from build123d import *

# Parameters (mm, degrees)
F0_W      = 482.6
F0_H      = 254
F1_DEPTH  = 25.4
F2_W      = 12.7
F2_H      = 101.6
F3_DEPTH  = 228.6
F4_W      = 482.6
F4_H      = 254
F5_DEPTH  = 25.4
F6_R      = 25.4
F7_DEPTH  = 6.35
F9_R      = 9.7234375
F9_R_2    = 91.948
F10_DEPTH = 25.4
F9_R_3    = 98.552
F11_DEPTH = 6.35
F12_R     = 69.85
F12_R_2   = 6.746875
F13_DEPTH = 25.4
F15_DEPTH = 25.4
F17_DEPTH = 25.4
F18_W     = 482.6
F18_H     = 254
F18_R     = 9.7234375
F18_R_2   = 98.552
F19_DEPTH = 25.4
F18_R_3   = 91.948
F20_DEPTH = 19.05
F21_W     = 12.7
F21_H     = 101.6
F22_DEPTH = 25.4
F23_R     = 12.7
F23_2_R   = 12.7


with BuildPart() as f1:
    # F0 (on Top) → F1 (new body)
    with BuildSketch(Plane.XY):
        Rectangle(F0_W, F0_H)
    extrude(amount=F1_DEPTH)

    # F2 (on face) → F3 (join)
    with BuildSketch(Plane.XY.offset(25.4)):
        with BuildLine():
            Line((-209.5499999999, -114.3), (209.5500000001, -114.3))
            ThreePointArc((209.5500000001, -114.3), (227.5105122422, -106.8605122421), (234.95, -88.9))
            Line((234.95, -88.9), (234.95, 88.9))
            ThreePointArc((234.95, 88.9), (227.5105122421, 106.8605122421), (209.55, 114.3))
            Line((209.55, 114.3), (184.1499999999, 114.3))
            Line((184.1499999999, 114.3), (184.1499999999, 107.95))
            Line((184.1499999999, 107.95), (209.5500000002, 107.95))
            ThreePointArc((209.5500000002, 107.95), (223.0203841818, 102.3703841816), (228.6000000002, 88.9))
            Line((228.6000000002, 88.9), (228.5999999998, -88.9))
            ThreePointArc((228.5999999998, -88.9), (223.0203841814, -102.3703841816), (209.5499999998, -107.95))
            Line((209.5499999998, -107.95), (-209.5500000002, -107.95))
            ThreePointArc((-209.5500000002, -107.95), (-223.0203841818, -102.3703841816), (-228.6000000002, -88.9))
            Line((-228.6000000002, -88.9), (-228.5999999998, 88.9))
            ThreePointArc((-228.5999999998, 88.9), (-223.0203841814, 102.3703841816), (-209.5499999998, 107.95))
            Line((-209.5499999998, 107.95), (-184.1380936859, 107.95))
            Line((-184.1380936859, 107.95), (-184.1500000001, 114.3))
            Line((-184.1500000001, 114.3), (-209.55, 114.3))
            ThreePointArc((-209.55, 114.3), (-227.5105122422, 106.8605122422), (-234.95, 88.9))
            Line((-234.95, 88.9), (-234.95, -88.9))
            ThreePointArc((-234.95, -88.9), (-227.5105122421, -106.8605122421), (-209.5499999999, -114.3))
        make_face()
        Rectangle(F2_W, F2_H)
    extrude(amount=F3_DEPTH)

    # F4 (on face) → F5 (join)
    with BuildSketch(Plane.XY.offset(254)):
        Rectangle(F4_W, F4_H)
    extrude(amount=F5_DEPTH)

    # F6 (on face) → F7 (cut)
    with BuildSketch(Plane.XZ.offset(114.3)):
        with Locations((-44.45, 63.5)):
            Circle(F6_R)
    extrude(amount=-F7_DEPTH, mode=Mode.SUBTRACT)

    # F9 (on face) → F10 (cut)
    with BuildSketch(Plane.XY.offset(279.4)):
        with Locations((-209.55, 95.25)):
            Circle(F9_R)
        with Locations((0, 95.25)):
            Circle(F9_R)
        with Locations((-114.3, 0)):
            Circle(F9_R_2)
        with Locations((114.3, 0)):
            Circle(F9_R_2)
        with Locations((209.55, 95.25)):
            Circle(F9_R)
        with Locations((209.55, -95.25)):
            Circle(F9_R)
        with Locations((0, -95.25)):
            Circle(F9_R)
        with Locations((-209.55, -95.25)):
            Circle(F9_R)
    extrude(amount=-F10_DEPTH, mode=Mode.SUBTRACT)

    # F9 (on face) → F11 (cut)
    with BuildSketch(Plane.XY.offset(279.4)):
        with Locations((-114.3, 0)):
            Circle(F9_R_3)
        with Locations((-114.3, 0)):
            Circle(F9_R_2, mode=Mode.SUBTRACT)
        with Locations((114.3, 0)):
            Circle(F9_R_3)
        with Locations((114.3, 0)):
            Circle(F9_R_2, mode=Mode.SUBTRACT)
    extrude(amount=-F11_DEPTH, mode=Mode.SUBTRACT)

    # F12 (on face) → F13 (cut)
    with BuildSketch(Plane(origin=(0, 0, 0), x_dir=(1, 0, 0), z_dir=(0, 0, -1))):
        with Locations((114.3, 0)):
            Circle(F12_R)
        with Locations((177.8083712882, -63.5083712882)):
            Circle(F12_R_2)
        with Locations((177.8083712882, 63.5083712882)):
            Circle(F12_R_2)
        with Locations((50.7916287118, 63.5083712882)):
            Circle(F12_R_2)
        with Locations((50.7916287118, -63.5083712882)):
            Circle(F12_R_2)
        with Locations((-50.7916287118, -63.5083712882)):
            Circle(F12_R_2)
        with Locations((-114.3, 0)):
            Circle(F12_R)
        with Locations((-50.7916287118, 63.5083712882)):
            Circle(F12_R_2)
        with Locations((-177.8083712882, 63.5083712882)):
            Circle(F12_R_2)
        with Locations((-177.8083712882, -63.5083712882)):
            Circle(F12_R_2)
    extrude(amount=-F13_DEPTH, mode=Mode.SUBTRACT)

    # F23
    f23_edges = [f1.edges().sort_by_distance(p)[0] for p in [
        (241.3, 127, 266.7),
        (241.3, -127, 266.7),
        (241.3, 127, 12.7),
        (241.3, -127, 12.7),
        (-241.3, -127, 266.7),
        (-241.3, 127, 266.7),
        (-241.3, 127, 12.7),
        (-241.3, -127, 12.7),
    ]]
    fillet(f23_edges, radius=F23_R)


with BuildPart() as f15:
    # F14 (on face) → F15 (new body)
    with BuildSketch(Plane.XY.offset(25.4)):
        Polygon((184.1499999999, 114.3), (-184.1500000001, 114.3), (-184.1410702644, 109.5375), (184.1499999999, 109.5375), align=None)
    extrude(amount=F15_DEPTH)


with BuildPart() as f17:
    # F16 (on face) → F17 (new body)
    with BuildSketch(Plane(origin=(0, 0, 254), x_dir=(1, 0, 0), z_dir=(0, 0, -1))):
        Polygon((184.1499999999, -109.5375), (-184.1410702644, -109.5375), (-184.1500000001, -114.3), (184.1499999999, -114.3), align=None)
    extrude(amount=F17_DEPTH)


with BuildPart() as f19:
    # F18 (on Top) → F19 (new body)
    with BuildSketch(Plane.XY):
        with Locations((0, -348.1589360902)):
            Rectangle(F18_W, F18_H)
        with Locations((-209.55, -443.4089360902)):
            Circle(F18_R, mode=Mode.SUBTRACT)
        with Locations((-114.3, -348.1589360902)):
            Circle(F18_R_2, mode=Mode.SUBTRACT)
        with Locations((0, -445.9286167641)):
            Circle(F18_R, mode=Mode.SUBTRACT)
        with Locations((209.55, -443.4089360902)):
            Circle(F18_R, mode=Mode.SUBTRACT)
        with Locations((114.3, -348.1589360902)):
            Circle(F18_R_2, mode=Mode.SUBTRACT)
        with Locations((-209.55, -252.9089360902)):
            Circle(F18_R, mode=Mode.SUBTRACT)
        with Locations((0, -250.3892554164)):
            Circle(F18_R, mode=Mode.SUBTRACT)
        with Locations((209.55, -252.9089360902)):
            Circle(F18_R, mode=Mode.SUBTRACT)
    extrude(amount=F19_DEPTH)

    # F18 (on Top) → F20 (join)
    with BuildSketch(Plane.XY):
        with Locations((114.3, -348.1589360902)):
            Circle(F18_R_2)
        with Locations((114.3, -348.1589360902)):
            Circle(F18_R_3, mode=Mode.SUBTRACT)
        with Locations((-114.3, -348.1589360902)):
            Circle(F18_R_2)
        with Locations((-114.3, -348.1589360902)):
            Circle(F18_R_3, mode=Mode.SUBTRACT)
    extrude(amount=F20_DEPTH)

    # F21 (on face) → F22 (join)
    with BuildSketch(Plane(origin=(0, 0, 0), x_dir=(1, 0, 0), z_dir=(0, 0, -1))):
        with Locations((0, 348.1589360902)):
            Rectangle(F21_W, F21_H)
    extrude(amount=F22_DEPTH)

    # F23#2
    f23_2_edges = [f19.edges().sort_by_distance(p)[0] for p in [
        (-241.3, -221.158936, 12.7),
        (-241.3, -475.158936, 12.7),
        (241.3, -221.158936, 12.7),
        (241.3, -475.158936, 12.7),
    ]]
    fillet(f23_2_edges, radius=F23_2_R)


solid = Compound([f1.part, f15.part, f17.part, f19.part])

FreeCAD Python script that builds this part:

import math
import FreeCAD as App
import Part
import Sketcher
Q = App.Units.Quantity


def edges_at(feature, points):
    """Names of the edges that pass closest to the given points."""
    edges = feature.Shape.Edges
    near = lambda p: min(range(len(edges)), key=lambda i: edges[i].distToShape(Part.Vertex(*p))[0])
    return sorted({f"Edge{near(p) + 1}" for p in points})

doc = App.newDocument("Part")
body = doc.addObject("PartDesign::Body", "Body")

sketch1 = doc.addObject("Sketcher::SketchObject", "Sketch")
body.addObject(sketch1)
sketch1.AttachmentSupport = (doc.XY_Plane, [""])
sketch1.MapMode = "FlatFace"
sketch1.addGeometry(Part.LineSegment(App.Vector(-241, 127, 0), App.Vector(-241, -127, 0)), False)
sketch1.addGeometry(Part.LineSegment(App.Vector(-241, -127, 0), App.Vector(241, -127, 0)), False)
sketch1.addGeometry(Part.LineSegment(App.Vector(241, -127, 0), App.Vector(241, 127, 0)), False)
sketch1.addGeometry(Part.LineSegment(App.Vector(241, 127, 0), App.Vector(-241, 127, 0)), False)
sketch1.addConstraint(Sketcher.Constraint("Coincident", 0, 2, 1, 1))
sketch1.addConstraint(Sketcher.Constraint("Coincident", 1, 2, 2, 1))
sketch1.addConstraint(Sketcher.Constraint("Coincident", 2, 2, 3, 1))
sketch1.addConstraint(Sketcher.Constraint("Coincident", 3, 2, 0, 1))
sketch1.addConstraint(Sketcher.Constraint("Vertical", 0))
sketch1.addConstraint(Sketcher.Constraint("Horizontal", 1))
sketch1.addConstraint(Sketcher.Constraint("Vertical", 2))
sketch1.addConstraint(Sketcher.Constraint("Horizontal", 3))
sketch1.addConstraint(Sketcher.Constraint("Symmetric", 0, 2, 2, 2, -1, 1))
sketch1.addConstraint(Sketcher.Constraint("DistanceX", 1, 1, 1, 2, Q("19 in")))
sketch1.addConstraint(Sketcher.Constraint("DistanceY", 0, 2, 0, 1, Q("10 in")))
pad1 = doc.addObject("PartDesign::Pad", "Pad")
body.addObject(pad1)
pad1.Profile = sketch1
pad1.Length = Q("1 in")

sketch2 = doc.addObject("Sketcher::SketchObject", "Sketch001")
body.addObject(sketch2)
sketch2.AttachmentSupport = (doc.XY_Plane, [""])
sketch2.MapMode = "FlatFace"
sketch2.AttachmentOffset = App.Placement(App.Vector(0, 0, 1 * 25.4), App.Rotation())
sketch2.addGeometry(Part.LineSegment(App.Vector(-210, -114, 0), App.Vector(210, -114, 0)), False)
sketch2.addGeometry(Part.ArcOfCircle(Part.Circle(App.Vector(210, -89, 0), App.Vector(0, 0, 1), 25), math.radians(-90), math.radians(0)), False)
sketch2.addGeometry(Part.LineSegment(App.Vector(235, -89, 0), App.Vector(235, 89, 0)), False)
sketch2.addGeometry(Part.ArcOfCircle(Part.Circle(App.Vector(210, 89, 0), App.Vector(0, 0, 1), 25), math.radians(0), math.radians(90)), False)
sketch2.addGeometry(Part.LineSegment(App.Vector(210, 114, 0), App.Vector(184, 114, 0)), False)
sketch2.addGeometry(Part.LineSegment(App.Vector(184, 114, 0), App.Vector(184, 108, 0)), False)
sketch2.addGeometry(Part.LineSegment(App.Vector(184, 108, 0), App.Vector(210, 108, 0)), False)
sketch2.addGeometry(Part.ArcOfCircle(Part.Circle(App.Vector(210, 89, 0), App.Vector(0, 0, 1), 19), math.radians(0), math.radians(90)), False)
sketch2.addGeometry(Part.LineSegment(App.Vector(229, 89, 0), App.Vector(229, -89, 0)), False)
sketch2.addGeometry(Part.ArcOfCircle(Part.Circle(App.Vector(210, -89, 0), App.Vector(0, 0, 1), 19), math.radians(-90), math.radians(0)), False)
sketch2.addGeometry(Part.LineSegment(App.Vector(210, -108, 0), App.Vector(-210, -108, 0)), False)
sketch2.addGeometry(Part.ArcOfCircle(Part.Circle(App.Vector(-210, -89, 0), App.Vector(0, 0, 1), 19), math.radians(180), math.radians(270)), False)
sketch2.addGeometry(Part.LineSegment(App.Vector(-229, -89, 0), App.Vector(-229, 89, 0)), False)
sketch2.addGeometry(Part.ArcOfCircle(Part.Circle(App.Vector(-210, 89, 0), App.Vector(0, 0, 1), 19), math.radians(90), math.radians(180)), False)
sketch2.addGeometry(Part.LineSegment(App.Vector(-210, 108, 0), App.Vector(-184, 108, 0)), False)
sketch2.addGeometry(Part.LineSegment(App.Vector(-184, 108, 0), App.Vector(-184, 114, 0)), False)
sketch2.addGeometry(Part.LineSegment(App.Vector(-184, 114, 0), App.Vector(-210, 114, 0)), False)
sketch2.addGeometry(Part.ArcOfCircle(Part.Circle(App.Vector(-210, 89, 0), App.Vector(0, 0, 1), 25), math.radians(90), math.radians(180)), False)
sketch2.addGeometry(Part.LineSegment(App.Vector(-235, 89, 0), App.Vector(-235, -89, 0)), False)
sketch2.addGeometry(Part.ArcOfCircle(Part.Circle(App.Vector(-210, -89, 0), App.Vector(0, 0, 1), 25), math.radians(180), math.radians(270)), False)
sketch2.addGeometry(Part.LineSegment(App.Vector(-6, 51, 0), App.Vector(-6, -51, 0)), False)
sketch2.addGeometry(Part.LineSegment(App.Vector(-6, -51, 0), App.Vector(6, -51, 0)), False)
sketch2.addGeometry(Part.LineSegment(App.Vector(6, -51, 0), App.Vector(6, 51, 0)), False)
sketch2.addGeometry(Part.LineSegment(App.Vector(6, 51, 0), App.Vector(-6, 51, 0)), False)
sketch2.addConstraint(Sketcher.Constraint("Tangent", 0, 2, 1, 1))
sketch2.addConstraint(Sketcher.Constraint("Tangent", 1, 2, 2, 1))
sketch2.addConstraint(Sketcher.Constraint("Tangent", 2, 2, 3, 1))
sketch2.addConstraint(Sketcher.Constraint("Tangent", 3, 2, 4, 1))
sketch2.addConstraint(Sketcher.Constraint("Coincident", 4, 2, 5, 1))
sketch2.addConstraint(Sketcher.Constraint("Coincident", 5, 2, 6, 1))
sketch2.addConstraint(Sketcher.Constraint("Tangent", 6, 2, 7, 2))
sketch2.addConstraint(Sketcher.Constraint("Tangent", 7, 1, 8, 1))
sketch2.addConstraint(Sketcher.Constraint("Tangent", 8, 2, 9, 2))
sketch2.addConstraint(Sketcher.Constraint("Tangent", 9, 1, 10, 1))
sketch2.addConstraint(Sketcher.Constraint("Tangent", 10, 2, 11, 2))
sketch2.addConstraint(Sketcher.Constraint("Tangent", 11, 1, 12, 1))
sketch2.addConstraint(Sketcher.Constraint("Tangent", 12, 2, 13, 2))
sketch2.addConstraint(Sketcher.Constraint("Tangent", 13, 1, 14, 1))
sketch2.addConstraint(Sketcher.Constraint("Coincident", 14, 2, 15, 1))
sketch2.addConstraint(Sketcher.Constraint("Coincident", 15, 2, 16, 1))
sketch2.addConstraint(Sketcher.Constraint("Tangent", 16, 2, 17, 1))
sketch2.addConstraint(Sketcher.Constraint("Tangent", 17, 2, 18, 1))
sketch2.addConstraint(Sketcher.Constraint("Tangent", 18, 2, 19, 1))
sketch2.addConstraint(Sketcher.Constraint("Tangent", 19, 2, 0, 1))
sketch2.addConstraint(Sketcher.Constraint("Coincident", 20, 2, 21, 1))
sketch2.addConstraint(Sketcher.Constraint("Coincident", 21, 2, 22, 1))
sketch2.addConstraint(Sketcher.Constraint("Coincident", 22, 2, 23, 1))
sketch2.addConstraint(Sketcher.Constraint("Coincident", 23, 2, 20, 1))
sketch2.addConstraint(Sketcher.Constraint("Horizontal", 0))
sketch2.addConstraint(Sketcher.Constraint("Vertical", 2))
sketch2.addConstraint(Sketcher.Constraint("Horizontal", 4))
sketch2.addConstraint(Sketcher.Constraint("Vertical", 5))
sketch2.addConstraint(Sketcher.Constraint("Horizontal", 6))
sketch2.addConstraint(Sketcher.Constraint("Vertical", 8))
sketch2.addConstraint(Sketcher.Constraint("Horizontal", 10))
sketch2.addConstraint(Sketcher.Constraint("Vertical", 12))
sketch2.addConstraint(Sketcher.Constraint("Horizontal", 14))
sketch2.addConstraint(Sketcher.Constraint("Horizontal", 16))
sketch2.addConstraint(Sketcher.Constraint("Vertical", 18))
sketch2.addConstraint(Sketcher.Constraint("Vertical", 20))
sketch2.addConstraint(Sketcher.Constraint("Horizontal", 21))
sketch2.addConstraint(Sketcher.Constraint("Vertical", 22))
sketch2.addConstraint(Sketcher.Constraint("Horizontal", 23))
sketch2.addConstraint(Sketcher.Constraint("Coincident", 7, 3, 3, 3))
sketch2.addConstraint(Sketcher.Constraint("Coincident", 9, 3, 1, 3))
sketch2.addConstraint(Sketcher.Constraint("Coincident", 17, 3, 13, 3))
sketch2.addConstraint(Sketcher.Constraint("Coincident", 19, 3, 11, 3))
sketch2.addConstraint(Sketcher.Constraint("Equal", 1, 3))
sketch2.addConstraint(Sketcher.Constraint("Equal", 9, 11))
sketch2.addConstraint(Sketcher.Constraint("Equal", 11, 13))
sketch2.addConstraint(Sketcher.Constraint("Symmetric", 3, 3, 11, 3, -1, 1))
sketch2.addConstraint(Sketcher.Constraint("Symmetric", 20, 2, 22, 2, -1, 1))
sketch2.addConstraint(Sketcher.Constraint("Symmetric", 4, 2, 15, 2, -2))
sketch2.addConstraint(Sketcher.Constraint("Radius", 1, Q("1 in")))
sketch2.addConstraint(Sketcher.Constraint("DistanceX", 4, 2, 4, 1, Q("1 in")))
sketch2.addConstraint(Sketcher.Constraint("DistanceY", 2, 1, 2, 2, Q("7 in")))
sketch2.addConstraint(Sketcher.Constraint("DistanceY", 20, 2, 20, 1, Q("4 in")))
sketch2.addConstraint(Sketcher.Constraint("Radius", 7, Q("0.75 in")))
sketch2.addConstraint(Sketcher.Constraint("DistanceX", 0, 1, 0, 2, Q("16.5 in")))
sketch2.addConstraint(Sketcher.Constraint("DistanceX", 21, 1, 21, 2, Q("0.5 in")))
sketch2.addConstraint(Sketcher.Constraint("DistanceX", 14, 1, 14, 2, 25.411906))
pad2 = doc.addObject("PartDesign::Pad", "Pad001")
body.addObject(pad2)
pad2.Profile = sketch2
pad2.Length = Q("9 in")

sketch3 = doc.addObject("Sketcher::SketchObject", "Sketch002")
body.addObject(sketch3)
sketch3.AttachmentSupport = (doc.XY_Plane, [""])
sketch3.MapMode = "FlatFace"
sketch3.AttachmentOffset = App.Placement(App.Vector(0, 0, 10 * 25.4), App.Rotation())
sketch3.addGeometry(Part.LineSegment(App.Vector(-241, 127, 0), App.Vector(-241, -127, 0)), False)
sketch3.addGeometry(Part.LineSegment(App.Vector(-241, -127, 0), App.Vector(241, -127, 0)), False)
sketch3.addGeometry(Part.LineSegment(App.Vector(241, -127, 0), App.Vector(241, 127, 0)), False)
sketch3.addGeometry(Part.LineSegment(App.Vector(241, 127, 0), App.Vector(-241, 127, 0)), False)
sketch3.addConstraint(Sketcher.Constraint("Coincident", 0, 2, 1, 1))
sketch3.addConstraint(Sketcher.Constraint("Coincident", 1, 2, 2, 1))
sketch3.addConstraint(Sketcher.Constraint("Coincident", 2, 2, 3, 1))
sketch3.addConstraint(Sketcher.Constraint("Coincident", 3, 2, 0, 1))
sketch3.addConstraint(Sketcher.Constraint("Vertical", 0))
sketch3.addConstraint(Sketcher.Constraint("Horizontal", 1))
sketch3.addConstraint(Sketcher.Constraint("Vertical", 2))
sketch3.addConstraint(Sketcher.Constraint("Horizontal", 3))
sketch3.addConstraint(Sketcher.Constraint("Symmetric", 0, 2, 2, 2, -1, 1))
sketch3.addConstraint(Sketcher.Constraint("DistanceX", 1, 1, 1, 2, Q("19 in")))
sketch3.addConstraint(Sketcher.Constraint("DistanceY", 0, 2, 0, 1, Q("10 in")))
pad3 = doc.addObject("PartDesign::Pad", "Pad002")
body.addObject(pad3)
pad3.Profile = sketch3
pad3.Length = Q("1 in")

sketch4 = doc.addObject("Sketcher::SketchObject", "Sketch003")
body.addObject(sketch4)
sketch4.AttachmentSupport = (doc.XZ_Plane, [""])
sketch4.MapMode = "FlatFace"
sketch4.AttachmentOffset = App.Placement(App.Vector(0, 0, 4.5 * 25.4), App.Rotation())
sketch4.addGeometry(Part.Circle(App.Vector(-44, 64, 0), App.Vector(0, 0, 1), 25), False)
sketch4.addConstraint(Sketcher.Constraint("Diameter", 0, Q("2 in")))
sketch4.addConstraint(Sketcher.Constraint("DistanceY", -1, 1, 0, 3, Q("2.5 in")))
sketch4.addConstraint(Sketcher.Constraint("DistanceX", 0, 3, -1, 1, Q("1.75 in")))
pocket1 = doc.addObject("PartDesign::Pocket", "Pocket")
body.addObject(pocket1)
pocket1.Profile = sketch4
pocket1.Length = Q("0.25 in")

sketch5 = doc.addObject("Sketcher::SketchObject", "Sketch004")
body.addObject(sketch5)
sketch5.AttachmentSupport = (doc.XY_Plane, [""])
sketch5.MapMode = "FlatFace"
sketch5.AttachmentOffset = App.Placement(App.Vector(0, 0, 11 * 25.4), App.Rotation())
sketch5.addGeometry(Part.Circle(App.Vector(-210, 95, 0), App.Vector(0, 0, 1), 10), False)
sketch5.addGeometry(Part.Circle(App.Vector(0, 95, 0), App.Vector(0, 0, 1), 10), False)
sketch5.addGeometry(Part.Circle(App.Vector(-114, 0, 0), App.Vector(0, 0, 1), 92), False)
sketch5.addGeometry(Part.Circle(App.Vector(114, 0, 0), App.Vector(0, 0, 1), 92), False)
sketch5.addGeometry(Part.Circle(App.Vector(210, 95, 0), App.Vector(0, 0, 1), 10), False)
sketch5.addGeometry(Part.Circle(App.Vector(210, -95, 0), App.Vector(0, 0, 1), 10), False)
sketch5.addGeometry(Part.Circle(App.Vector(0, -95, 0), App.Vector(0, 0, 1), 10), False)
sketch5.addGeometry(Part.Circle(App.Vector(-210, -95, 0), App.Vector(0, 0, 1), 10), False)
sketch5.addConstraint(Sketcher.Constraint("Equal", 0, 1))
sketch5.addConstraint(Sketcher.Constraint("Equal", 2, 3))
sketch5.addConstraint(Sketcher.Constraint("Equal", 1, 4))
sketch5.addConstraint(Sketcher.Constraint("Equal", 4, 5))
sketch5.addConstraint(Sketcher.Constraint("Equal", 5, 6))
sketch5.addConstraint(Sketcher.Constraint("Equal", 6, 7))
sketch5.addConstraint(Sketcher.Constraint("Symmetric", 2, 3, 3, 3, -1, 1))
sketch5.addConstraint(Sketcher.Constraint("Symmetric", 0, 3, 5, 3, -1, 1))
sketch5.addConstraint(Sketcher.Constraint("Symmetric", 1, 3, 6, 3, -1, 1))
sketch5.addConstraint(Sketcher.Constraint("Symmetric", 4, 3, 7, 3, -1, 1))
sketch5.addConstraint(Sketcher.Constraint("Symmetric", 0, 3, 4, 3, -2))
sketch5.addConstraint(Sketcher.Constraint("PointOnObject", 1, 3, -2))
sketch5.addConstraint(Sketcher.Constraint("PointOnObject", 2, 3, -1))
sketch5.addConstraint(Sketcher.Constraint("Horizontal", 0, 3, 1, 3))
sketch5.addConstraint(Sketcher.Constraint("Diameter", 2, Q("7.24 in")))
sketch5.addConstraint(Sketcher.Constraint("Diameter", 0, Q("0.765625 in")))
sketch5.addConstraint(Sketcher.Constraint("DistanceX", 2, 3, 3, 3, Q("9 in")))
sketch5.addConstraint(Sketcher.Constraint("DistanceX", 0, 3, 4, 3, Q("16.5 in")))
sketch5.addConstraint(Sketcher.Constraint("DistanceY", 5, 3, 4, 3, Q("7.5 in")))
pocket2 = doc.addObject("PartDesign::Pocket", "Pocket001")
body.addObject(pocket2)
pocket2.Profile = sketch5
pocket2.Length = Q("1 in")

sketch6 = doc.addObject("Sketcher::SketchObject", "Sketch005")
body.addObject(sketch6)
sketch6.AttachmentSupport = (doc.XY_Plane, [""])
sketch6.MapMode = "FlatFace"
sketch6.AttachmentOffset = App.Placement(App.Vector(0, 0, 11 * 25.4), App.Rotation())
sketch6.addGeometry(Part.Circle(App.Vector(-114, 0, 0), App.Vector(0, 0, 1), 99), False)
sketch6.addGeometry(Part.Circle(App.Vector(-114, 0, 0), App.Vector(0, 0, 1), 92), False)
sketch6.addGeometry(Part.Circle(App.Vector(114, 0, 0), App.Vector(0, 0, 1), 99), False)
sketch6.addGeometry(Part.Circle(App.Vector(114, 0, 0), App.Vector(0, 0, 1), 92), False)
sketch6.addConstraint(Sketcher.Constraint("Coincident", 1, 3, 0, 3))
sketch6.addConstraint(Sketcher.Constraint("Coincident", 3, 3, 2, 3))
sketch6.addConstraint(Sketcher.Constraint("Equal", 0, 2))
sketch6.addConstraint(Sketcher.Constraint("Equal", 1, 3))
sketch6.addConstraint(Sketcher.Constraint("Symmetric", 0, 3, 2, 3, -1, 1))
sketch6.addConstraint(Sketcher.Constraint("PointOnObject", 0, 3, -1))
sketch6.addConstraint(Sketcher.Constraint("Diameter", 0, Q("7.76 in")))
sketch6.addConstraint(Sketcher.Constraint("Diameter", 1, Q("7.24 in")))
sketch6.addConstraint(Sketcher.Constraint("DistanceX", 0, 3, 2, 3, Q("9 in")))
pocket3 = doc.addObject("PartDesign::Pocket", "Pocket002")
body.addObject(pocket3)
pocket3.Profile = sketch6
pocket3.Length = Q("0.25 in")

sketch7 = doc.addObject("Sketcher::SketchObject", "Sketch006")
body.addObject(sketch7)
sketch7.AttachmentSupport = (doc.XY_Plane, [""])
sketch7.MapMode = "FlatFace"
sketch7.addGeometry(Part.Circle(App.Vector(114, 0, 0), App.Vector(0, 0, 1), 70), False)
sketch7.addGeometry(Part.Circle(App.Vector(178, 64, 0), App.Vector(0, 0, 1), 7), False)
sketch7.addGeometry(Part.Circle(App.Vector(178, -64, 0), App.Vector(0, 0, 1), 7), False)
sketch7.addGeometry(Part.Circle(App.Vector(51, -64, 0), App.Vector(0, 0, 1), 7), False)
sketch7.addGeometry(Part.Circle(App.Vector(51, 64, 0), App.Vector(0, 0, 1), 7), False)
sketch7.addGeometry(Part.Circle(App.Vector(-51, 64, 0), App.Vector(0, 0, 1), 7), False)
sketch7.addGeometry(Part.Circle(App.Vector(-114, 0, 0), App.Vector(0, 0, 1), 70), False)
sketch7.addGeometry(Part.Circle(App.Vector(-51, -64, 0), App.Vector(0, 0, 1), 7), False)
sketch7.addGeometry(Part.Circle(App.Vector(-178, -64, 0), App.Vector(0, 0, 1), 7), False)
sketch7.addGeometry(Part.Circle(App.Vector(-178, 64, 0), App.Vector(0, 0, 1), 7), False)
sketch7.addConstraint(Sketcher.Constraint("Equal", 1, 2))
sketch7.addConstraint(Sketcher.Constraint("Equal", 2, 3))
sketch7.addConstraint(Sketcher.Constraint("Equal", 3, 4))
sketch7.addConstraint(Sketcher.Constraint("Equal", 4, 5))
sketch7.addConstraint(Sketcher.Constraint("Equal", 0, 6))
sketch7.addConstraint(Sketcher.Constraint("Equal", 5, 7))
sketch7.addConstraint(Sketcher.Constraint("Equal", 7, 8))
sketch7.addConstraint(Sketcher.Constraint("Equal", 8, 9))
sketch7.addConstraint(Sketcher.Constraint("Symmetric", 3, 3, 5, 3, -1, 1))
sketch7.addConstraint(Sketcher.Constraint("Symmetric", 0, 3, 6, 3, -1, 1))
sketch7.addConstraint(Sketcher.Constraint("Symmetric", 4, 3, 7, 3, -1, 1))
sketch7.addConstraint(Sketcher.Constraint("Symmetric", 1, 3, 8, 3, -1, 1))
sketch7.addConstraint(Sketcher.Constraint("Symmetric", 2, 3, 9, 3, -1, 1))
sketch7.addConstraint(Sketcher.Constraint("Symmetric", 4, 3, 5, 3, -2))
sketch7.addConstraint(Sketcher.Constraint("Symmetric", 2, 3, 8, 3, -2))
sketch7.addConstraint(Sketcher.Constraint("PointOnObject", 0, 3, -1))
sketch7.addConstraint(Sketcher.Constraint("Horizontal", 2, 3, 3, 3))
sketch7.addConstraint(Sketcher.Constraint("Diameter", 0, Q("5.5 in")))
sketch7.addConstraint(Sketcher.Constraint("Diameter", 1, Q("0.53125 in")))
sketch7.addConstraint(Sketcher.Constraint("DistanceX", 5, 3, 1, 3, Q("9 in")))
sketch7.addConstraint(Sketcher.Constraint("DistanceX", 6, 3, 0, 3, Q("9 in")))
sketch7.addConstraint(Sketcher.Constraint("DistanceX", -1, 1, 1, 3, 177.808371))
sketch7.addConstraint(Sketcher.Constraint("DistanceY", -1, 1, 1, 3, 63.508371))
pocket4 = doc.addObject("PartDesign::Pocket", "Pocket003")
body.addObject(pocket4)
pocket4.Profile = sketch7
pocket4.Length = Q("1 in")
pocket4.Reversed = True
doc.recompute()

fillet = doc.addObject("PartDesign::Fillet", "Fillet")
body.addObject(fillet)
fillet.Base = (pocket4, edges_at(pocket4, [
    (241.3, 127, 266.7),
    (241.3, -127, 266.7),
    (241.3, 127, 12.7),
    (241.3, -127, 12.7),
    (-241.3, -127, 266.7),
    (-241.3, 127, 266.7),
    (-241.3, 127, 12.7),
    (-241.3, -127, 12.7),
]))
fillet.Radius = Q("0.5 in")
body2 = doc.addObject("PartDesign::Body", "Body001")

sketch8 = doc.addObject("Sketcher::SketchObject", "Sketch007")
body2.addObject(sketch8)
sketch8.AttachmentSupport = (doc.getObject("XY_Plane001"), [""])
sketch8.MapMode = "FlatFace"
sketch8.AttachmentOffset = App.Placement(App.Vector(0, 0, 1 * 25.4), App.Rotation())
sketch8.addGeometry(Part.LineSegment(App.Vector(184.2, 114.3, 0), App.Vector(-184.2, 114.3, 0)), False)
sketch8.addGeometry(Part.LineSegment(App.Vector(-184.2, 114.3, 0), App.Vector(-184.1, 109.5, 0)), False)
sketch8.addGeometry(Part.LineSegment(App.Vector(-184.1, 109.5, 0), App.Vector(184.2, 109.5, 0)), False)
sketch8.addGeometry(Part.LineSegment(App.Vector(184.2, 109.5, 0), App.Vector(184.2, 114.3, 0)), False)
sketch8.addConstraint(Sketcher.Constraint("Coincident", 0, 2, 1, 1))
sketch8.addConstraint(Sketcher.Constraint("Coincident", 1, 2, 2, 1))
sketch8.addConstraint(Sketcher.Constraint("Coincident", 2, 2, 3, 1))
sketch8.addConstraint(Sketcher.Constraint("Coincident", 3, 2, 0, 1))
sketch8.addConstraint(Sketcher.Constraint("Horizontal", 0))
sketch8.addConstraint(Sketcher.Constraint("Horizontal", 2))
sketch8.addConstraint(Sketcher.Constraint("Vertical", 3))
sketch8.addConstraint(Sketcher.Constraint("DistanceX", 0, 2, 0, 1, Q("14.5 in")))
sketch8.addConstraint(Sketcher.Constraint("DistanceY", -1, 1, 0, 2, Q("4.5 in")))
sketch8.addConstraint(Sketcher.Constraint("DistanceY", 3, 1, 3, 2, Q("0.1875 in")))
sketch8.addConstraint(Sketcher.Constraint("DistanceX", 0, 2, -1, 1, Q("7.25 in")))
sketch8.addConstraint(Sketcher.Constraint("DistanceX", 2, 1, 2, 2, 368.29107))
pad4 = doc.addObject("PartDesign::Pad", "Pad003")
body2.addObject(pad4)
pad4.Profile = sketch8
pad4.Length = Q("1 in")
body3 = doc.addObject("PartDesign::Body", "Body002")

sketch9 = doc.addObject("Sketcher::SketchObject", "Sketch008")
body3.addObject(sketch9)
sketch9.AttachmentSupport = (doc.getObject("XY_Plane002"), [""])
sketch9.MapMode = "FlatFace"
sketch9.AttachmentOffset = App.Placement(App.Vector(0, 0, 10 * 25.4), App.Rotation())
sketch9.addGeometry(Part.LineSegment(App.Vector(184.2, 109.5, 0), App.Vector(-184.1, 109.5, 0)), False)
sketch9.addGeometry(Part.LineSegment(App.Vector(-184.1, 109.5, 0), App.Vector(-184.2, 114.3, 0)), False)
sketch9.addGeometry(Part.LineSegment(App.Vector(-184.2, 114.3, 0), App.Vector(184.2, 114.3, 0)), False)
sketch9.addGeometry(Part.LineSegment(App.Vector(184.2, 114.3, 0), App.Vector(184.2, 109.5, 0)), False)
sketch9.addConstraint(Sketcher.Constraint("Coincident", 0, 2, 1, 1))
sketch9.addConstraint(Sketcher.Constraint("Coincident", 1, 2, 2, 1))
sketch9.addConstraint(Sketcher.Constraint("Coincident", 2, 2, 3, 1))
sketch9.addConstraint(Sketcher.Constraint("Coincident", 3, 2, 0, 1))
sketch9.addConstraint(Sketcher.Constraint("Horizontal", 0))
sketch9.addConstraint(Sketcher.Constraint("Horizontal", 2))
sketch9.addConstraint(Sketcher.Constraint("Vertical", 3))
sketch9.addConstraint(Sketcher.Constraint("DistanceX", 2, 1, 2, 2, Q("14.5 in")))
sketch9.addConstraint(Sketcher.Constraint("DistanceY", -1, 1, 1, 2, Q("4.5 in")))
sketch9.addConstraint(Sketcher.Constraint("DistanceY", 3, 2, 3, 1, Q("0.1875 in")))
sketch9.addConstraint(Sketcher.Constraint("DistanceX", 1, 2, -1, 1, Q("7.25 in")))
sketch9.addConstraint(Sketcher.Constraint("DistanceX", 0, 2, 0, 1, 368.29107))
pad5 = doc.addObject("PartDesign::Pad", "Pad004")
body3.addObject(pad5)
pad5.Profile = sketch9
pad5.Length = Q("1 in")
pad5.Reversed = True
body4 = doc.addObject("PartDesign::Body", "Body003")

sketch10 = doc.addObject("Sketcher::SketchObject", "Sketch009")
body4.addObject(sketch10)
sketch10.AttachmentSupport = (doc.getObject("XY_Plane003"), [""])
sketch10.MapMode = "FlatFace"
sketch10.addGeometry(Part.LineSegment(App.Vector(-241, -221, 0), App.Vector(-241, -475, 0)), False)
sketch10.addGeometry(Part.LineSegment(App.Vector(-241, -475, 0), App.Vector(241, -475, 0)), False)
sketch10.addGeometry(Part.LineSegment(App.Vector(241, -475, 0), App.Vector(241, -221, 0)), False)
sketch10.addGeometry(Part.LineSegment(App.Vector(241, -221, 0), App.Vector(-241, -221, 0)), False)
sketch10.addGeometry(Part.Circle(App.Vector(-210, -443, 0), App.Vector(0, 0, 1), 10), False)
sketch10.addGeometry(Part.Circle(App.Vector(0, -446, 0), App.Vector(0, 0, 1), 10), False)
sketch10.addGeometry(Part.Circle(App.Vector(210, -443, 0), App.Vector(0, 0, 1), 10), False)
sketch10.addGeometry(Part.Circle(App.Vector(-114, -348, 0), App.Vector(0, 0, 1), 99), False)
sketch10.addGeometry(Part.Circle(App.Vector(-210, -253, 0), App.Vector(0, 0, 1), 10), False)
sketch10.addGeometry(Part.Circle(App.Vector(0, -250, 0), App.Vector(0, 0, 1), 10), False)
sketch10.addGeometry(Part.Circle(App.Vector(114, -348, 0), App.Vector(0, 0, 1), 99), False)
sketch10.addGeometry(Part.Circle(App.Vector(210, -253, 0), App.Vector(0, 0, 1), 10), False)
sketch10.addConstraint(Sketcher.Constraint("Coincident", 0, 2, 1, 1))
sketch10.addConstraint(Sketcher.Constraint("Coincident", 1, 2, 2, 1))
sketch10.addConstraint(Sketcher.Constraint("Coincident", 2, 2, 3, 1))
sketch10.addConstraint(Sketcher.Constraint("Coincident", 3, 2, 0, 1))
sketch10.addConstraint(Sketcher.Constraint("Vertical", 0))
sketch10.addConstraint(Sketcher.Constraint("Horizontal", 1))
sketch10.addConstraint(Sketcher.Constraint("Vertical", 2))
sketch10.addConstraint(Sketcher.Constraint("Horizontal", 3))
sketch10.addConstraint(Sketcher.Constraint("Equal", 4, 5))
sketch10.addConstraint(Sketcher.Constraint("Equal", 5, 6))
sketch10.addConstraint(Sketcher.Constraint("Equal", 6, 8))
sketch10.addConstraint(Sketcher.Constraint("Equal", 8, 9))
sketch10.addConstraint(Sketcher.Constraint("Equal", 7, 10))
sketch10.addConstraint(Sketcher.Constraint("Equal", 9, 11))
sketch10.addConstraint(Sketcher.Constraint("Symmetric", 4, 3, 6, 3, -2))
sketch10.addConstraint(Sketcher.Constraint("Symmetric", 7, 3, 10, 3, -2))
sketch10.addConstraint(Sketcher.Constraint("Symmetric", 8, 3, 11, 3, -2))
sketch10.addConstraint(Sketcher.Constraint("PointOnObject", 5, 3, -2))
sketch10.addConstraint(Sketcher.Constraint("PointOnObject", 9, 3, -2))
sketch10.addConstraint(Sketcher.Constraint("Vertical", 4, 3, 8, 3))
sketch10.addConstraint(Sketcher.Constraint("Diameter", 7, Q("7.76 in")))
sketch10.addConstraint(Sketcher.Constraint("DistanceX", 1, 1, 1, 2, Q("19 in")))
sketch10.addConstraint(Sketcher.Constraint("DistanceY", 0, 2, 0, 1, Q("10 in")))
sketch10.addConstraint(Sketcher.Constraint("Diameter", 4, Q("0.765625 in")))
sketch10.addConstraint(Sketcher.Constraint("DistanceX", 7, 3, 10, 3, Q("9 in")))
sketch10.addConstraint(Sketcher.Constraint("DistanceX", 0, 2, 7, 3, Q("5 in")))
sketch10.addConstraint(Sketcher.Constraint("DistanceY", 0, 2, 7, 3, Q("5 in")))
sketch10.addConstraint(Sketcher.Constraint("DistanceX", 4, 3, 6, 3, Q("16.5 in")))
sketch10.addConstraint(Sketcher.Constraint("DistanceY", 4, 3, 8, 3, Q("7.5 in")))
sketch10.addConstraint(Sketcher.Constraint("DistanceY", 4, 3, 7, 3, Q("3.75 in")))
sketch10.addConstraint(Sketcher.Constraint("DistanceY", 5, 3, 4, 3, Q("0.0992 in")))
sketch10.addConstraint(Sketcher.Constraint("DistanceY", 7, 3, 9, 3, Q("3.8492 in")))
sketch10.addConstraint(Sketcher.Constraint("DistanceY", 4, 3, -1, 1, 443.408936))
pad6 = doc.addObject("PartDesign::Pad", "Pad005")
body4.addObject(pad6)
pad6.Profile = sketch10
pad6.Length = Q("1 in")

sketch11 = doc.addObject("Sketcher::SketchObject", "Sketch010")
body4.addObject(sketch11)
sketch11.AttachmentSupport = (doc.getObject("XY_Plane003"), [""])
sketch11.MapMode = "FlatFace"
sketch11.addGeometry(Part.Circle(App.Vector(114, -348, 0), App.Vector(0, 0, 1), 99), False)
sketch11.addGeometry(Part.Circle(App.Vector(114, -348, 0), App.Vector(0, 0, 1), 92), False)
sketch11.addGeometry(Part.Circle(App.Vector(-114, -348, 0), App.Vector(0, 0, 1), 99), False)
sketch11.addGeometry(Part.Circle(App.Vector(-114, -348, 0), App.Vector(0, 0, 1), 92), False)
sketch11.addConstraint(Sketcher.Constraint("Coincident", 1, 3, 0, 3))
sketch11.addConstraint(Sketcher.Constraint("Coincident", 3, 3, 2, 3))
sketch11.addConstraint(Sketcher.Constraint("Equal", 0, 2))
sketch11.addConstraint(Sketcher.Constraint("Equal", 1, 3))
sketch11.addConstraint(Sketcher.Constraint("Symmetric", 0, 3, 2, 3, -2))
sketch11.addConstraint(Sketcher.Constraint("Diameter", 0, Q("7.76 in")))
sketch11.addConstraint(Sketcher.Constraint("Diameter", 1, Q("7.24 in")))
sketch11.addConstraint(Sketcher.Constraint("DistanceX", 2, 3, 0, 3, Q("9 in")))
sketch11.addConstraint(Sketcher.Constraint("DistanceY", 0, 3, -1, 1, 348.158936))
pad7 = doc.addObject("PartDesign::Pad", "Pad006")
body4.addObject(pad7)
pad7.Profile = sketch11
pad7.Length = Q("0.75 in")

sketch12 = doc.addObject("Sketcher::SketchObject", "Sketch011")
body4.addObject(sketch12)
sketch12.AttachmentSupport = (doc.getObject("XY_Plane003"), [""])
sketch12.MapMode = "FlatFace"
sketch12.addGeometry(Part.LineSegment(App.Vector(-6, -399, 0), App.Vector(-6, -297, 0)), False)
sketch12.addGeometry(Part.LineSegment(App.Vector(-6, -297, 0), App.Vector(6, -297, 0)), False)
sketch12.addGeometry(Part.LineSegment(App.Vector(6, -297, 0), App.Vector(6, -399, 0)), False)
sketch12.addGeometry(Part.LineSegment(App.Vector(6, -399, 0), App.Vector(-6, -399, 0)), False)
sketch12.addConstraint(Sketcher.Constraint("Coincident", 0, 2, 1, 1))
sketch12.addConstraint(Sketcher.Constraint("Coincident", 1, 2, 2, 1))
sketch12.addConstraint(Sketcher.Constraint("Coincident", 2, 2, 3, 1))
sketch12.addConstraint(Sketcher.Constraint("Coincident", 3, 2, 0, 1))
sketch12.addConstraint(Sketcher.Constraint("Vertical", 0))
sketch12.addConstraint(Sketcher.Constraint("Horizontal", 1))
sketch12.addConstraint(Sketcher.Constraint("Vertical", 2))
sketch12.addConstraint(Sketcher.Constraint("Horizontal", 3))
sketch12.addConstraint(Sketcher.Constraint("DistanceY", 0, 1, 0, 2, Q("4 in")))
sketch12.addConstraint(Sketcher.Constraint("DistanceX", 1, 1, 1, 2, Q("0.5 in")))
sketch12.addConstraint(Sketcher.Constraint("DistanceX", 0, 2, -1, 1, Q("0.25 in")))
sketch12.addConstraint(Sketcher.Constraint("DistanceY", 0, 2, -1, 1, 297.358936))
pad8 = doc.addObject("PartDesign::Pad", "Pad007")
body4.addObject(pad8)
pad8.Profile = sketch12
pad8.Length = Q("1 in")
pad8.Reversed = True
doc.recompute()

fillet2 = doc.addObject("PartDesign::Fillet", "Fillet001")
body4.addObject(fillet2)
fillet2.Base = (pad8, edges_at(pad8, [
    (-241.3, -221.159, 12.7),
    (-241.3, -475.159, 12.7),
    (241.3, -221.159, 12.7),
    (241.3, -475.159, 12.7),
]))
fillet2.Radius = Q("0.5 in")

doc.recompute()
